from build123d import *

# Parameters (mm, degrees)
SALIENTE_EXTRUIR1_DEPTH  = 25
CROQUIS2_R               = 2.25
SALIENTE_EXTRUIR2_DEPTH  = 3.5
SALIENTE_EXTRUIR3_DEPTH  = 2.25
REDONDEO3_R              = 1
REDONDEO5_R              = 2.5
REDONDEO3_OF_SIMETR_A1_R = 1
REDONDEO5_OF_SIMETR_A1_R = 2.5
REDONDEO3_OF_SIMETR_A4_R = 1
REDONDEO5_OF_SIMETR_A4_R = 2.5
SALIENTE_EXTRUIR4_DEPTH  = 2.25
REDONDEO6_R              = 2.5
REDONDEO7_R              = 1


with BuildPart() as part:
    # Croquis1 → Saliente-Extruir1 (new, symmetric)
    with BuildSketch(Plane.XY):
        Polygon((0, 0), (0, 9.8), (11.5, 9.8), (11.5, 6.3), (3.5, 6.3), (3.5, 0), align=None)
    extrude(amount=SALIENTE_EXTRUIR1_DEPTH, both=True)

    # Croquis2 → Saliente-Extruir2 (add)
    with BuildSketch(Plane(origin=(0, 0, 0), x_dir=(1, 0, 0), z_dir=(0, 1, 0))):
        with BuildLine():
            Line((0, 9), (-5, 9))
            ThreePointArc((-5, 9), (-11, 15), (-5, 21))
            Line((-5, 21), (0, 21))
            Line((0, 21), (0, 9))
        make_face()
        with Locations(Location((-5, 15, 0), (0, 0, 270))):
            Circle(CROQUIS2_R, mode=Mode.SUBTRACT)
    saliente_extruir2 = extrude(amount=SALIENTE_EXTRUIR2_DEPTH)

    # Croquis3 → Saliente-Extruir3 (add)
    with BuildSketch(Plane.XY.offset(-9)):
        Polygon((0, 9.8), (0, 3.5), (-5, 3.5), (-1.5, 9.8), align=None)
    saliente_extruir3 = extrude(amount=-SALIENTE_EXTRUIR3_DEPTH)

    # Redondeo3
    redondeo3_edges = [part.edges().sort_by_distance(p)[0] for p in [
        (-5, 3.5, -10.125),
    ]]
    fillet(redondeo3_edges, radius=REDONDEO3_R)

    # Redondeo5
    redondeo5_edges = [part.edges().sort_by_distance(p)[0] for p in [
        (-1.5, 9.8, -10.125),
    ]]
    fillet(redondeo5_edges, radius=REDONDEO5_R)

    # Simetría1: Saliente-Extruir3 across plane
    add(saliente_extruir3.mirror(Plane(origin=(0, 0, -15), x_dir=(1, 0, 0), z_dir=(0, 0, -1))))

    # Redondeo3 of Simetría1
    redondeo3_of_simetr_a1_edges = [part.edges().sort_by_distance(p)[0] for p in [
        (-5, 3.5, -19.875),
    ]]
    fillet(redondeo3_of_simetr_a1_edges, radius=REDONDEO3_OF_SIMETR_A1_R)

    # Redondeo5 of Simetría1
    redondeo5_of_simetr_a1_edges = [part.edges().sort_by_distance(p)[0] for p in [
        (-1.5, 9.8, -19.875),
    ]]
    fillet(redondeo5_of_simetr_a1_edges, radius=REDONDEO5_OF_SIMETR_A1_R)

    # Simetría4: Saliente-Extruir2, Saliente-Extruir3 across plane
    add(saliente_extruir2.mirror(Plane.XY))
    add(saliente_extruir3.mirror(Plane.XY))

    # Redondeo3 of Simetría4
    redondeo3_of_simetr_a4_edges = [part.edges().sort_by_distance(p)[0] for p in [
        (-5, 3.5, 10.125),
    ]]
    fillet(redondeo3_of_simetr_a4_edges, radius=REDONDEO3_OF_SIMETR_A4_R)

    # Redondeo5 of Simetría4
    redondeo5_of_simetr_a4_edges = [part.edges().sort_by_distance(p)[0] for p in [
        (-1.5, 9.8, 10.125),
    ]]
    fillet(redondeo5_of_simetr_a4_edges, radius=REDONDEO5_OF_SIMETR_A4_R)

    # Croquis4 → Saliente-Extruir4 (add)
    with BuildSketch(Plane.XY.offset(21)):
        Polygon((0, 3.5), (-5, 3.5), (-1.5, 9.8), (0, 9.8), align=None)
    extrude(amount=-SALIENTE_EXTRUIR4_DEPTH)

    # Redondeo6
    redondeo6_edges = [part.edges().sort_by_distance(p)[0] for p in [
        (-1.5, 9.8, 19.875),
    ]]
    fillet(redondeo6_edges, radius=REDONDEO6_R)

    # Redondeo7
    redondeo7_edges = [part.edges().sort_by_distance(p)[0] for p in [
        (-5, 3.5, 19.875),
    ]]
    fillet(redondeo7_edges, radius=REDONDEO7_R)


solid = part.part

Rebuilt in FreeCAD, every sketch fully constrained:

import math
import FreeCAD as App
import Part
import Sketcher
from FreeCAD import Vector
Q = App.Units.Quantity


def edges_at(feature, points):
    """Names of the edges that pass closest to the given points."""
    edges = feature.Shape.Edges
    near = lambda p: min(range(len(edges)), key=lambda i: edges[i].distToShape(Part.Vertex(*p))[0])
    return sorted({f"Edge{near(p) + 1}" for p in points})


def add_polygon(sketch, points):
    """Adds a closed chain of lines whose ends are joined by coincident constraints."""
    first, n = sketch.GeometryCount, len(points)
    for a, b in zip(points, points[1:] + points[:1]):
        sketch.addGeometry(Part.LineSegment(App.Vector(*a, 0), App.Vector(*b, 0)), False)
    for i in range(n):
        sketch.addConstraint(Sketcher.Constraint("Coincident", first + i, 2, first + (i + 1) % n, 1))

doc = App.newDocument("Part")
body = doc.addObject("PartDesign::Body", "Body")

sketch1 = body.newObject("Sketcher::SketchObject", "Sketch")
sketch1.AttachmentSupport = (doc.getObject("XY_Plane"), [""])
sketch1.MapMode = "FlatFace"
add_polygon(sketch1, [(0, 9.8), (0, 0), (3.5, 0), (3.5, 6.3), (11.5, 6.3), (11.5, 9.8)])
sketch1.addConstraint(Sketcher.Constraint("Vertical", 0))
sketch1.addConstraint(Sketcher.Constraint("Horizontal", 1))
sketch1.addConstraint(Sketcher.Constraint("Vertical", 2))
sketch1.addConstraint(Sketcher.Constraint("Horizontal", 3))
sketch1.addConstraint(Sketcher.Constraint("Vertical", 4))
sketch1.addConstraint(Sketcher.Constraint("Horizontal", 5))
sketch1.addConstraint(Sketcher.Constraint("Coincident", 0, 2, -1, 1))
sketch1.addConstraint(Sketcher.Constraint("Equal", 1, 4))
sketch1.addConstraint(Sketcher.Constraint("DistanceX", 3, 1, 3, 2, Q("8 mm")))
sketch1.addConstraint(Sketcher.Constraint("DistanceX", 1, 1, 1, 2, Q("3.5 mm")))
sketch1.addConstraint(Sketcher.Constraint("DistanceY", 0, 2, 0, 1, Q("9.8 mm")))
pad1 = body.newObject("PartDesign::Pad", "Pad")
pad1.Profile = sketch1
pad1.Length = 50
pad1.Midplane = True

sketch2 = body.newObject("Sketcher::SketchObject", "Sketch001")
sketch2.AttachmentSupport = (doc.getObject("XZ_Plane"), [""])
sketch2.MapMode = "FlatFace"
sketch2.addGeometry(Part.LineSegment(Vector(-5, -9, 0), Vector(0, -9, 0)), False)
sketch2.addGeometry(Part.LineSegment(Vector(0, -9, 0), Vector(0, -21, 0)), False)
sketch2.addGeometry(Part.LineSegment(Vector(0, -21, 0), Vector(-5, -21, 0)), False)
sketch2.addGeometry(Part.ArcOfCircle(Part.Circle(Vector(-5, -15, 0), Vector(0, 0, 1), 6), math.radians(90), math.radians(270)), False)
sketch2.addGeometry(Part.Circle(Vector(-5, -15, 0), Vector(0, 0, 1), 2.2), False)
sketch2.addConstraint(Sketcher.Constraint("Coincident", 0, 2, 1, 1))
sketch2.addConstraint(Sketcher.Constraint("Coincident", 1, 2, 2, 1))
sketch2.addConstraint(Sketcher.Constraint("Tangent", 2, 2, 3, 2))
sketch2.addConstraint(Sketcher.Constraint("Tangent", 3, 1, 0, 1))
sketch2.addConstraint(Sketcher.Constraint("Horizontal", 0))
sketch2.addConstraint(Sketcher.Constraint("Vertical", 1))
sketch2.addConstraint(Sketcher.Constraint("Horizontal", 2))
sketch2.addConstraint(Sketcher.Constraint("Coincident", 4, 3, 3, 3))
sketch2.addConstraint(Sketcher.Constraint("PointOnObject", 0, 2, -2))
sketch2.addConstraint(Sketcher.Constraint("Radius", 3, Q("6 mm")))
sketch2.addConstraint(Sketcher.Constraint("Diameter", 4, Q("4.5 mm")))
sketch2.addConstraint(Sketcher.Constraint("DistanceX", 0, 1, 0, 2, Q("5 mm")))
sketch2.addConstraint(Sketcher.Constraint("DistanceY", 3, 3, -1, 1, Q("15 mm")))
pad2 = body.newObject("PartDesign::Pad", "Pad001")
pad2.Profile = sketch2
pad2.Length = 3.5
pad2.Reversed = True

sketch3 = body.newObject("Sketcher::SketchObject", "Sketch002")
sketch3.AttachmentSupport = (doc.getObject("XY_Plane"), [""])
sketch3.MapMode = "FlatFace"
sketch3.AttachmentOffset = App.Placement(Vector(0, 0, -9), App.Rotation())
add_polygon(sketch3, [(0, 3.5), (0, 9.8), (-1.5, 9.8), (-5, 3.5)])
sketch3.addConstraint(Sketcher.Constraint("Vertical", 0))
sketch3.addConstraint(Sketcher.Constraint("Horizontal", 1))
sketch3.addConstraint(Sketcher.Constraint("Horizontal", 3))
sketch3.addConstraint(Sketcher.Constraint("PointOnObject", 0, 2, -2))
sketch3.addConstraint(Sketcher.Constraint("DistanceX", 3, 1, 3, 2, Q("5 mm")))
sketch3.addConstraint(Sketcher.Constraint("DistanceX", 1, 2, 1, 1, Q("1.5 mm")))
sketch3.addConstraint(Sketcher.Constraint("DistanceY", 0, 1, 0, 2, Q("6.3 mm")))
sketch3.addConstraint(Sketcher.Constraint("DistanceY", -1, 1, 0, 2, Q("9.8 mm")))
pad3 = body.newObject("PartDesign::Pad", "Pad002")
pad3.Profile = sketch3
pad3.Length = 2.25
pad3.Reversed = True
doc.recompute()

fillet = body.newObject("PartDesign::Fillet", "Fillet")
fillet.Base = (pad3, edges_at(pad3, [(-5, 3.5, -10.125)]))
fillet.Radius = 1
doc.recompute()

fillet2 = body.newObject("PartDesign::Fillet", "Fillet001")
fillet2.Base = (fillet, edges_at(fillet, [(-1.5, 9.8, -10.125)]))
fillet2.Radius = 2.5
doc.recompute()

datumplane = body.newObject("PartDesign::Plane", "DatumPlane")
datumplane.AttachmentSupport = (doc.getObject("XY_Plane"), [""])
datumplane.MapMode = "FlatFace"
datumplane.AttachmentOffset = App.Placement(Vector(0, 0, -15), App.Rotation())
mirrored = body.newObject("PartDesign::Mirrored", "Mirrored")
mirrored.Originals = [pad3]
mirrored.MirrorPlane = (datumplane, [""])
body.Tip = mirrored
doc.recompute()

fillet3 = body.newObject("PartDesign::Fillet", "Fillet002")
fillet3.Base = (mirrored, edges_at(mirrored, [(-5, 3.5, -19.875)]))
fillet3.Radius = 1
doc.recompute()

fillet4 = body.newObject("PartDesign::Fillet", "Fillet003")
fillet4.Base = (fillet3, edges_at(fillet3, [(-1.5, 9.8, -19.875)]))
fillet4.Radius = 2.5
doc.recompute()

mirrored2 = body.newObject("PartDesign::Mirrored", "Mirrored001")
mirrored2.Originals = [pad2, pad3]
mirrored2.MirrorPlane = (doc.getObject("XY_Plane"), [""])
body.Tip = mirrored2
doc.recompute()

fillet5 = body.newObject("PartDesign::Fillet", "Fillet004")
fillet5.Base = (mirrored2, edges_at(mirrored2, [(-5, 3.5, 10.125)]))
fillet5.Radius = 1
doc.recompute()

fillet6 = body.newObject("PartDesign::Fillet", "Fillet005")
fillet6.Base = (fillet5, edges_at(fillet5, [(-1.5, 9.8, 10.125)]))
fillet6.Radius = 2.5

sketch4 = body.newObject("Sketcher::SketchObject", "Sketch003")
sketch4.AttachmentSupport = (doc.getObject("XY_Plane"), [""])
sketch4.MapMode = "FlatFace"
sketch4.AttachmentOffset = App.Placement(Vector(0, 0, 21), App.Rotation())
add_polygon(sketch4, [(-5, 3.5), (0, 3.5), (0, 9.8), (-1.5, 9.8)])
sketch4.addConstraint(Sketcher.Constraint("Horizontal", 0))
sketch4.addConstraint(Sketcher.Constraint("Vertical", 1))
sketch4.addConstraint(Sketcher.Constraint("Horizontal", 2))
sketch4.addConstraint(Sketcher.Constraint("PointOnObject", 0, 2, -2))
sketch4.addConstraint(Sketcher.Constraint("DistanceX", 0, 1, 0, 2, Q("5 mm")))
sketch4.addConstraint(Sketcher.Constraint("DistanceX", 2, 2, 2, 1, Q("1.5 mm")))
sketch4.addConstraint(Sketcher.Constraint("DistanceY", 1, 1, 1, 2, Q("6.3 mm")))
sketch4.addConstraint(Sketcher.Constraint("DistanceY", -1, 1, 0, 2, Q("3.5 mm")))
pad4 = body.newObject("PartDesign::Pad", "Pad003")
pad4.Profile = sketch4
pad4.Length = 2.25
pad4.Reversed = True
doc.recompute()

fillet7 = body.newObject("PartDesign::Fillet", "Fillet006")
fillet7.Base = (pad4, edges_at(pad4, [(-1.5, 9.8, 19.875)]))
fillet7.Radius = 2.5
doc.recompute()

fillet8 = body.newObject("PartDesign::Fillet", "Fillet007")
fillet8.Base = (fillet7, edges_at(fillet7, [(-5, 3.5, 19.875)]))
fillet8.Radius = 1

doc.recompute()
